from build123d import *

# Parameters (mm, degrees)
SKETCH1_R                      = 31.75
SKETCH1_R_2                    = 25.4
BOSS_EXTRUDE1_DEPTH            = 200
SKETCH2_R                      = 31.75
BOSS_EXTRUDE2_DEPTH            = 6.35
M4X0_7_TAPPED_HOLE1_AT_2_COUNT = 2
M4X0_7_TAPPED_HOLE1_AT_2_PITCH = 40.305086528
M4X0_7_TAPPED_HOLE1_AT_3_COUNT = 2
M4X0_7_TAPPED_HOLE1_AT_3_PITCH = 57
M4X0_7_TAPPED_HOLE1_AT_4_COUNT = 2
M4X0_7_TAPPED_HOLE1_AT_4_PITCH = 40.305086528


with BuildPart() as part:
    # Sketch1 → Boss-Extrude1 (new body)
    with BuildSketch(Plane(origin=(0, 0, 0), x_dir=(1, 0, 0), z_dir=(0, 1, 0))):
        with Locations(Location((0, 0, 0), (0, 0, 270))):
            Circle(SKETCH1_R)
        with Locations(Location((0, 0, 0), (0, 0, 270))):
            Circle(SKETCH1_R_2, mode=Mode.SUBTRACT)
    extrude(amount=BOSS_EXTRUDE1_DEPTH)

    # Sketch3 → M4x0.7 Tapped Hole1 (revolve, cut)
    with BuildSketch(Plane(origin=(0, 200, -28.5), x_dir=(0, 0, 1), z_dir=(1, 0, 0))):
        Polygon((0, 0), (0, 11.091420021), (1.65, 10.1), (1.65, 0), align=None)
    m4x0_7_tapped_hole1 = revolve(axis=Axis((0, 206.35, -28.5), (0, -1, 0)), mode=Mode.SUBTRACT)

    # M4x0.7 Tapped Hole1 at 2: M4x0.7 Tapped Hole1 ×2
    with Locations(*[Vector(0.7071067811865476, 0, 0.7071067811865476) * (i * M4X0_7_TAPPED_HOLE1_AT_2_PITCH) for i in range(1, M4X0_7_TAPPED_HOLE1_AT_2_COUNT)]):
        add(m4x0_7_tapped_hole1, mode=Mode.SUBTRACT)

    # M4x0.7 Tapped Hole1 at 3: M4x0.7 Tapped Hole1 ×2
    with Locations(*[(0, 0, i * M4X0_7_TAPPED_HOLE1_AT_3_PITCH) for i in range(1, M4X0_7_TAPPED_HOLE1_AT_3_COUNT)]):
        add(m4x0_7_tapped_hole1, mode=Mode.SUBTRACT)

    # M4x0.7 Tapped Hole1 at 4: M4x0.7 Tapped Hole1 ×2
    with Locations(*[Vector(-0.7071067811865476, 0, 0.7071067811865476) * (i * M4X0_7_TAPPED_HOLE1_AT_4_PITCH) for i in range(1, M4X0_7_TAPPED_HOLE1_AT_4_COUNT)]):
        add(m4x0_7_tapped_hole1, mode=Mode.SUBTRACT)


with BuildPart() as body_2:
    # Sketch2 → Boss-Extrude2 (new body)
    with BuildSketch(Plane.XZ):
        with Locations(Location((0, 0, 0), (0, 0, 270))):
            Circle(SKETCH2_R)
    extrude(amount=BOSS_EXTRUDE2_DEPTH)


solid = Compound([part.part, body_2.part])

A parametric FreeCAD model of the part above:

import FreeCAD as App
import Part
import Sketcher
from FreeCAD import Vector
Q = App.Units.Quantity


def add_polygon(sketch, points):
    """Adds a closed chain of lines whose ends are joined by coincident constraints."""
    first, n = sketch.GeometryCount, len(points)
    for a, b in zip(points, points[1:] + points[:1]):
        sketch.addGeometry(Part.LineSegment(App.Vector(*a, 0), App.Vector(*b, 0)), False)
    for i in range(n):
        sketch.addConstraint(Sketcher.Constraint("Coincident", first + i, 2, first + (i + 1) % n, 1))

doc = App.newDocument("Part")
params = doc.addObject("Spreadsheet::Sheet", "Params")
for row, (alias, value) in enumerate([
    ("sketch1_diameter", "2 in"),
    ("sketch1_diameter2", "2.5 in"),
    ("pad1_length", "200 mm"),
    ("groove_angle", "360 deg"),
    ("linearpattern_pitch", "40.305087 mm"),
    ("linearpattern2_pitch", "57 mm"),
    ("linearpattern3_pitch", "40.305087 mm"),
    ("sketch3_diameter", "2.5 in"),
    ("pad2_length", "0.25 in"),
], start=1):
    params.set(f"A{row}", alias)
    params.set(f"B{row}", "=" + value)
    params.setAlias(f"B{row}", alias)

body = doc.addObject("PartDesign::Body", "Body")

# Sketch on XZ plane
sketch1 = body.newObject("Sketcher::SketchObject", "Sketch")
sketch1.AttachmentSupport = (doc.getObject("XZ_Plane"), [""])
sketch1.MapMode = "FlatFace"
sketch1.addGeometry([
    Part.Circle(Vector(0, 0, 0), Vector(0, 0, 1), 31.75),
    Part.Circle(Vector(0, 0, 0), Vector(0, 0, 1), 25.4),
], False)
sketch1.addConstraint([
    Sketcher.Constraint("Coincident", 0, 3, -1, 1),
    Sketcher.Constraint("Coincident", 1, 3, -1, 1),
    Sketcher.Constraint("Diameter", 1, Q("2 in")),
    Sketcher.Constraint("Diameter", 0, Q("2.5 in")),
])
sketch1.setExpression("Constraints[2]", "Params.sketch1_diameter")
sketch1.setExpression("Constraints[3]", "Params.sketch1_diameter2")
pad1 = body.newObject("PartDesign::Pad", "Pad")
pad1.Profile = sketch1
pad1.setExpression("Length", "Params.pad1_length")
pad1.Reversed = True

# Sketch on YZ plane
sketch2 = body.newObject("Sketcher::SketchObject", "Sketch001")
sketch2.AttachmentSupport = (doc.getObject("YZ_Plane"), [""])
sketch2.MapMode = "FlatFace"
add_polygon(sketch2, [(188.90858, -28.5), (200, -28.5), (200, -26.85), (189.9, -26.85)])  # lines 0-3
sketch2.addGeometry(Part.LineSegment(Vector(200, -28.5, 0), Vector(188.90858, -28.5, 0)), True)  # axis
sketch2.addConstraint([
    Sketcher.Constraint("Horizontal", 0),
    Sketcher.Constraint("Vertical", 1),
    Sketcher.Constraint("Horizontal", 2),
    Sketcher.Constraint("Horizontal", 4),
    Sketcher.Constraint("Coincident", 4, 1, 0, 2),
    Sketcher.Constraint("Equal", 0, 4),
    Sketcher.Constraint("Angle", 3, Q("-121 deg")),
    Sketcher.Constraint("DistanceX", 2, 2, 2, 1, 10.1),
    Sketcher.Constraint("DistanceY", 1, 1, 1, 2, 1.65),
    Sketcher.Constraint("DistanceX", -1, 1, 0, 2, 200.0),
    Sketcher.Constraint("DistanceY", 0, 2, -1, 1, 28.5),
])
groove = body.newObject("PartDesign::Groove", "Groove")
groove.Profile = sketch2
groove.ReferenceAxis = (sketch2, ["Axis0"])
groove.setExpression("Angle", "Params.groove_angle")
doc.recompute()

datumline = body.newObject("PartDesign::Line", "DatumLine")
datumline.Placement = App.Placement(Vector(0, 0, 0), App.Rotation(Vector(0, 0, 1), Vector(0.707106781, 0, 0.707106781)))
linearpattern = body.newObject("PartDesign::LinearPattern", "LinearPattern")
linearpattern.Originals = [groove]
linearpattern.Direction = (datumline, [""])
linearpattern.Mode = "offset"
linearpattern.setExpression("Offset", "Params.linearpattern_pitch")
linearpattern.Occurrences = 2
body.Tip = linearpattern
doc.recompute()

linearpattern2 = body.newObject("PartDesign::LinearPattern", "LinearPattern001")
linearpattern2.Originals = [groove]
linearpattern2.Direction = (doc.getObject("Z_Axis"), [""])
linearpattern2.Mode = "offset"
linearpattern2.setExpression("Offset", "Params.linearpattern2_pitch")
linearpattern2.Occurrences = 2
body.Tip = linearpattern2
doc.recompute()

datumline2 = body.newObject("PartDesign::Line", "DatumLine001")
datumline2.Placement = App.Placement(Vector(0, 0, 0), App.Rotation(Vector(0, 0, 1), Vector(-0.707106781, 0, 0.707106781)))
linearpattern3 = body.newObject("PartDesign::LinearPattern", "LinearPattern002")
linearpattern3.Originals = [groove]
linearpattern3.Direction = (datumline2, [""])
linearpattern3.Mode = "offset"
linearpattern3.setExpression("Offset", "Params.linearpattern3_pitch")
linearpattern3.Occurrences = 2
body.Tip = linearpattern3
body2 = doc.addObject("PartDesign::Body", "Body001")

# Sketch on XZ plane
sketch3 = body2.newObject("Sketcher::SketchObject", "Sketch002")
sketch3.AttachmentSupport = (doc.getObject("XZ_Plane001"), [""])
sketch3.MapMode = "FlatFace"
sketch3.addGeometry(Part.Circle(Vector(0, 0, 0), Vector(0, 0, 1), 31.75), False)
sketch3.addConstraint([
    Sketcher.Constraint("Coincident", 0, 3, -1, 1),
    Sketcher.Constraint("Diameter", 0, Q("2.5 in")),
])
sketch3.setExpression("Constraints[1]", "Params.sketch3_diameter")
pad2 = body2.newObject("PartDesign::Pad", "Pad001")
pad2.Profile = sketch3
pad2.setExpression("Length", "Params.pad2_length")

doc.recompute()
